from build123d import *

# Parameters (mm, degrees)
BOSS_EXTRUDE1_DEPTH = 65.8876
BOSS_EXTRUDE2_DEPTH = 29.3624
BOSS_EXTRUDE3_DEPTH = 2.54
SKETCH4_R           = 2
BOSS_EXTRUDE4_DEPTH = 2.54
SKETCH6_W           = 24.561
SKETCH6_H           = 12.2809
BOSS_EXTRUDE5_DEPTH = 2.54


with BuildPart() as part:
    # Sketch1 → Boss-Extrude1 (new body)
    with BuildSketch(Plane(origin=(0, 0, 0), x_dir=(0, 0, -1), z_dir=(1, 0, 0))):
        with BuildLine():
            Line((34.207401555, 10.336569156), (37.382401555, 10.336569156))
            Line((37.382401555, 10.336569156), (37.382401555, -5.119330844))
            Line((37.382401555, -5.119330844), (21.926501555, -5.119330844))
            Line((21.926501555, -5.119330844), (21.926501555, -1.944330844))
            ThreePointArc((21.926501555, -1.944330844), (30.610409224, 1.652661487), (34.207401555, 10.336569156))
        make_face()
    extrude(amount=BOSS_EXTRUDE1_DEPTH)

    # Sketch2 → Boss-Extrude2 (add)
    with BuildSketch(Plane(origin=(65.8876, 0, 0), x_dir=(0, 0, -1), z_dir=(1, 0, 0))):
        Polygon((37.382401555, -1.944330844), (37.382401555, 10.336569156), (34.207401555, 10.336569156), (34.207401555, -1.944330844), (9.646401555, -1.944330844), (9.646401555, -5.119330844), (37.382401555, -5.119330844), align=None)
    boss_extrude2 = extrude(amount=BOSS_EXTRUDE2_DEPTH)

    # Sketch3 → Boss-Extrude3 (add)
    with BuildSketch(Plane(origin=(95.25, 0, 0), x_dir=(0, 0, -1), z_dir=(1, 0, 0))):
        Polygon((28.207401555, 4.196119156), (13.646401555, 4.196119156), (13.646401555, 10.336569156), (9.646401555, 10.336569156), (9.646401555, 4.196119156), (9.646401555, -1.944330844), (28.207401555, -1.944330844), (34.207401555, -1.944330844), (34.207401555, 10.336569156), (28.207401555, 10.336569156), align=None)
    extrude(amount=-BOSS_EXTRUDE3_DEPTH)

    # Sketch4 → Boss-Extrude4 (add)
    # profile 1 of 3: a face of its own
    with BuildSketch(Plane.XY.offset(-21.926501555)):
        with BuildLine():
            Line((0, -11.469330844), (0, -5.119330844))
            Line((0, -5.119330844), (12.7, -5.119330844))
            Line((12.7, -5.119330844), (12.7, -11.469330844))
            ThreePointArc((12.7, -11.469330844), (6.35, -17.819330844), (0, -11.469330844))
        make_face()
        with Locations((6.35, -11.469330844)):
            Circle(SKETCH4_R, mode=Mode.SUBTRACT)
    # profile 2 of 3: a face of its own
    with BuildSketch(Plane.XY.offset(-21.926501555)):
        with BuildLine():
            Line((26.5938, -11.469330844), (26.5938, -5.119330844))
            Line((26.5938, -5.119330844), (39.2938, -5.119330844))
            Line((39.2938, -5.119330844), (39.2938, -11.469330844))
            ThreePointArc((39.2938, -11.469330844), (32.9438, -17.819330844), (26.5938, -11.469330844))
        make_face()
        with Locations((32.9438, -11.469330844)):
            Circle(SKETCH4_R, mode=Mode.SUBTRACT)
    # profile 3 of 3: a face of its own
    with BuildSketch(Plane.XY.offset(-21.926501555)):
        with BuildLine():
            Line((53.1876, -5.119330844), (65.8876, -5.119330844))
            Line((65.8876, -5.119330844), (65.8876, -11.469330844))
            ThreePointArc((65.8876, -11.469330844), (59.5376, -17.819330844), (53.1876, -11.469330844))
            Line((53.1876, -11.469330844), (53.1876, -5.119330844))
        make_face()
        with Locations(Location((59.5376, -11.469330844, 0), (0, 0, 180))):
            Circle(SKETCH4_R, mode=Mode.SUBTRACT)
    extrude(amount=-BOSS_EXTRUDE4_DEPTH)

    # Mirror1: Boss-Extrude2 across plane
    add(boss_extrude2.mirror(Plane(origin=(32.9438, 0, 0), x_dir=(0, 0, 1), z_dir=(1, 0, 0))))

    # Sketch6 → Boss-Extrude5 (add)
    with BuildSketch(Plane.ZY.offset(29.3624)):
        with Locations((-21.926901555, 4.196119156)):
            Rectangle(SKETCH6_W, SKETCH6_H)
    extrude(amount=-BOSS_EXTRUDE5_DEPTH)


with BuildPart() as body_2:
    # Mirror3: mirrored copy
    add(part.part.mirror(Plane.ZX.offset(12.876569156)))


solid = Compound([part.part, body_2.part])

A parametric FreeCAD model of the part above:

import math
import FreeCAD as App
import Part
import Sketcher
Q = App.Units.Quantity


def add_polygon(sketch, points):
    """Adds a closed chain of lines whose ends are joined by coincident constraints."""
    first, n = sketch.GeometryCount, len(points)
    for a, b in zip(points, points[1:] + points[:1]):
        sketch.addGeometry(Part.LineSegment(App.Vector(*a, 0), App.Vector(*b, 0)), False)
    for i in range(n):
        sketch.addConstraint(Sketcher.Constraint("Coincident", first + i, 2, first + (i + 1) % n, 1))

doc = App.newDocument("Part")
params = doc.addObject("Spreadsheet::Sheet", "Params")
for row, (alias, value) in enumerate([
    ("sketch1_width", "0.125 in"),
    ("pad1_length", "2.594 in"),
    ("sketch2_width", "0.125 in"),
    ("pad2_length", "1.156 in"),
    ("pad3_length", "0.1 in"),
    ("sketch4_radius", "0.25 in"),
    ("sketch4_height", "0.25 in"),
    ("pad4_length", "0.1 in"),
    ("pad5_length", "0.1 in"),
], start=1):
    params.set(f"A{row}", alias)
    params.set(f"B{row}", "=" + value)
    params.setAlias(f"B{row}", alias)

body = doc.addObject("PartDesign::Body", "Body")

sketch1 = body.newObject("Sketcher::SketchObject", "Sketch")
sketch1.AttachmentSupport = (doc.getObject("YZ_Plane"), [""])
sketch1.MapMode = "FlatFace"
sketch1.addGeometry(Part.LineSegment(App.Vector(10.3, -37.4, 0), App.Vector(10.3, -34.2, 0)), False)
sketch1.addGeometry(Part.ArcOfCircle(Part.Circle(App.Vector(10.3, -21.9, 0), App.Vector(0, 0, 1), 12.3), math.radians(180), math.radians(270)), False)
sketch1.addGeometry(Part.LineSegment(App.Vector(-1.9, -21.9, 0), App.Vector(-5.1, -21.9, 0)), False)
sketch1.addGeometry(Part.LineSegment(App.Vector(-5.1, -21.9, 0), App.Vector(-5.1, -37.4, 0)), False)
sketch1.addGeometry(Part.LineSegment(App.Vector(-5.1, -37.4, 0), App.Vector(10.3, -37.4, 0)), False)
sketch1.addConstraint(Sketcher.Constraint("Coincident", 0, 2, 1, 2))
sketch1.addConstraint(Sketcher.Constraint("Coincident", 1, 1, 2, 1))
sketch1.addConstraint(Sketcher.Constraint("Coincident", 2, 2, 3, 1))
sketch1.addConstraint(Sketcher.Constraint("Coincident", 3, 2, 4, 1))
sketch1.addConstraint(Sketcher.Constraint("Coincident", 4, 2, 0, 1))
sketch1.addConstraint(Sketcher.Constraint("Vertical", 0))
sketch1.addConstraint(Sketcher.Constraint("Horizontal", 2))
sketch1.addConstraint(Sketcher.Constraint("Vertical", 3))
sketch1.addConstraint(Sketcher.Constraint("Horizontal", 4))
sketch1.addConstraint(Sketcher.Constraint("Vertical", 1, 3, 0, 2))
sketch1.addConstraint(Sketcher.Constraint("Equal", 2, 0))
sketch1.addConstraint(Sketcher.Constraint("Equal", 4, 3))
sketch1.addConstraint(Sketcher.Constraint("Radius", 1, Q("0.4835 in")))
sketch1.addConstraint(Sketcher.Constraint("DistanceX", 2, 2, 2, 1, Q("0.125 in")))
sketch1.addConstraint(Sketcher.Constraint("DistanceY", 1, 3, -1, 1, 21.926502))
sketch1.addConstraint(Sketcher.Constraint("DistanceX", -1, 1, 1, 3, 10.336569))
sketch1.setExpression("Constraints[13]", "Params.sketch1_width")
pad1 = body.newObject("PartDesign::Pad", "Pad")
pad1.Profile = sketch1
pad1.setExpression("Length", "Params.pad1_length")

sketch2 = body.newObject("Sketcher::SketchObject", "Sketch001")
sketch2.AttachmentSupport = (doc.getObject("YZ_Plane"), [""])
sketch2.MapMode = "FlatFace"
sketch2.AttachmentOffset = App.Placement(App.Vector(0, 0, 2.594 * 25.4), App.Rotation())
add_polygon(sketch2, [(10.3, -37.4), (10.3, -34.2), (-1.9, -34.2), (-1.9, -9.6), (-5.1, -9.6), (-5.1, -37.4)])
sketch2.addConstraint(Sketcher.Constraint("Vertical", 0))
sketch2.addConstraint(Sketcher.Constraint("Horizontal", 1))
sketch2.addConstraint(Sketcher.Constraint("Vertical", 2))
sketch2.addConstraint(Sketcher.Constraint("Horizontal", 3))
sketch2.addConstraint(Sketcher.Constraint("Vertical", 4))
sketch2.addConstraint(Sketcher.Constraint("Horizontal", 5))
sketch2.addConstraint(Sketcher.Constraint("Equal", 3, 0))
sketch2.addConstraint(Sketcher.Constraint("DistanceX", 3, 2, 3, 1, Q("0.125 in")))
sketch2.addConstraint(Sketcher.Constraint("DistanceX", 1, 2, 1, 1, Q("0.4835 in")))
sketch2.addConstraint(Sketcher.Constraint("DistanceY", 2, 1, 2, 2, 24.561))
sketch2.addConstraint(Sketcher.Constraint("DistanceY", 0, 2, -1, 1, 34.207402))
sketch2.addConstraint(Sketcher.Constraint("DistanceX", -1, 1, 0, 2, 10.336569))
sketch2.setExpression("Constraints[13]", "Params.sketch2_width")
pad2 = body.newObject("PartDesign::Pad", "Pad001")
pad2.Profile = sketch2
pad2.setExpression("Length", "Params.pad2_length")

sketch3 = body.newObject("Sketcher::SketchObject", "Sketch002")
sketch3.AttachmentSupport = (doc.getObject("YZ_Plane"), [""])
sketch3.MapMode = "FlatFace"
sketch3.AttachmentOffset = App.Placement(App.Vector(0, 0, 3.75 * 25.4), App.Rotation())
add_polygon(sketch3, [(4.2, -28.2), (4.2, -13.6), (10.3, -13.6), (10.3, -9.6), (-1.9, -9.6), (-1.9, -34.2), (10.3, -34.2), (10.3, -28.2)])
sketch3.addConstraint(Sketcher.Constraint("Vertical", 0))
sketch3.addConstraint(Sketcher.Constraint("Horizontal", 1))
sketch3.addConstraint(Sketcher.Constraint("Vertical", 2))
sketch3.addConstraint(Sketcher.Constraint("Horizontal", 3))
sketch3.addConstraint(Sketcher.Constraint("Vertical", 4))
sketch3.addConstraint(Sketcher.Constraint("Horizontal", 5))
sketch3.addConstraint(Sketcher.Constraint("Vertical", 6))
sketch3.addConstraint(Sketcher.Constraint("Horizontal", 7))
sketch3.addConstraint(Sketcher.Constraint("Vertical", 2, 2, 5, 2))
sketch3.addConstraint(Sketcher.Constraint("DistanceX", 3, 2, 3, 1, Q("0.4835 in")))
sketch3.addConstraint(Sketcher.Constraint("DistanceY", 0, 1, 0, 2, 14.561))
sketch3.addConstraint(Sketcher.Constraint("DistanceY", 2, 1, 2, 2, 4.0))
sketch3.addConstraint(Sketcher.Constraint("DistanceY", 4, 2, 4, 1, 24.561))
sketch3.addConstraint(Sketcher.Constraint("DistanceX", 1, 1, 1, 2, 6.14045))
sketch3.addConstraint(Sketcher.Constraint("DistanceY", 0, 2, -1, 1, 13.646402))
sketch3.addConstraint(Sketcher.Constraint("DistanceX", -1, 1, 0, 2, 4.196119))
pad3 = body.newObject("PartDesign::Pad", "Pad002")
pad3.Profile = sketch3
pad3.setExpression("Length", "Params.pad3_length")
pad3.Reversed = True

sketch4 = body.newObject("Sketcher::SketchObject", "Sketch003")
sketch4.AttachmentSupport = (doc.getObject("XY_Plane"), [""])
sketch4.MapMode = "FlatFace"
sketch4.AttachmentOffset = App.Placement(App.Vector(0, 0, -21.926502), App.Rotation())
sketch4.addGeometry(Part.LineSegment(App.Vector(0, -5.1, 0), App.Vector(0, -11.5, 0)), False)
sketch4.addGeometry(Part.ArcOfCircle(Part.Circle(App.Vector(6.3, -11.5, 0), App.Vector(0, 0, 1), 6.3), math.radians(180), math.radians(360)), False)
sketch4.addGeometry(Part.LineSegment(App.Vector(12.7, -11.5, 0), App.Vector(12.7, -5.1, 0)), False)
sketch4.addGeometry(Part.LineSegment(App.Vector(12.7, -5.1, 0), App.Vector(0, -5.1, 0)), False)
sketch4.addGeometry(Part.Circle(App.Vector(6.3, -11.5, 0), App.Vector(0, 0, 1), 2), False)
sketch4.addGeometry(Part.LineSegment(App.Vector(26.6, -5.1, 0), App.Vector(26.6, -11.5, 0)), False)
sketch4.addGeometry(Part.ArcOfCircle(Part.Circle(App.Vector(32.9, -11.5, 0), App.Vector(0, 0, 1), 6.3), math.radians(180), math.radians(360)), False)
sketch4.addGeometry(Part.LineSegment(App.Vector(39.3, -11.5, 0), App.Vector(39.3, -5.1, 0)), False)
sketch4.addGeometry(Part.LineSegment(App.Vector(39.3, -5.1, 0), App.Vector(26.6, -5.1, 0)), False)
sketch4.addGeometry(Part.Circle(App.Vector(32.9, -11.5, 0), App.Vector(0, 0, 1), 2), False)
sketch4.addGeometry(Part.LineSegment(App.Vector(65.9, -5.1, 0), App.Vector(53.2, -5.1, 0)), False)
sketch4.addGeometry(Part.LineSegment(App.Vector(53.2, -5.1, 0), App.Vector(53.2, -11.5, 0)), False)
sketch4.addGeometry(Part.ArcOfCircle(Part.Circle(App.Vector(59.5, -11.5, 0), App.Vector(0, 0, 1), 6.3), math.radians(180), math.radians(360)), False)
sketch4.addGeometry(Part.LineSegment(App.Vector(65.9, -11.5, 0), App.Vector(65.9, -5.1, 0)), False)
sketch4.addGeometry(Part.Circle(App.Vector(59.5, -11.5, 0), App.Vector(0, 0, 1), 2), False)
sketch4.addConstraint(Sketcher.Constraint("Tangent", 0, 2, 1, 1))
sketch4.addConstraint(Sketcher.Constraint("Tangent", 1, 2, 2, 1))
sketch4.addConstraint(Sketcher.Constraint("Coincident", 2, 2, 3, 1))
sketch4.addConstraint(Sketcher.Constraint("Coincident", 3, 2, 0, 1))
sketch4.addConstraint(Sketcher.Constraint("Tangent", 5, 2, 6, 1))
sketch4.addConstraint(Sketcher.Constraint("Tangent", 6, 2, 7, 1))
sketch4.addConstraint(Sketcher.Constraint("Coincident", 7, 2, 8, 1))
sketch4.addConstraint(Sketcher.Constraint("Coincident", 8, 2, 5, 1))
sketch4.addConstraint(Sketcher.Constraint("Coincident", 10, 2, 11, 1))
sketch4.addConstraint(Sketcher.Constraint("Tangent", 11, 2, 12, 1))
sketch4.addConstraint(Sketcher.Constraint("Tangent", 12, 2, 13, 1))
sketch4.addConstraint(Sketcher.Constraint("Coincident", 13, 2, 10, 1))
sketch4.addConstraint(Sketcher.Constraint("Vertical", 0))
sketch4.addConstraint(Sketcher.Constraint("Vertical", 2))
sketch4.addConstraint(Sketcher.Constraint("Horizontal", 3))
sketch4.addConstraint(Sketcher.Constraint("Vertical", 5))
sketch4.addConstraint(Sketcher.Constraint("Vertical", 7))
sketch4.addConstraint(Sketcher.Constraint("Horizontal", 8))
sketch4.addConstraint(Sketcher.Constraint("Horizontal", 10))
sketch4.addConstraint(Sketcher.Constraint("Vertical", 11))
sketch4.addConstraint(Sketcher.Constraint("Vertical", 13))
sketch4.addConstraint(Sketcher.Constraint("Coincident", 4, 3, 1, 3))
sketch4.addConstraint(Sketcher.Constraint("Coincident", 9, 3, 6, 3))
sketch4.addConstraint(Sketcher.Constraint("Coincident", 14, 3, 12, 3))
sketch4.addConstraint(Sketcher.Constraint("Equal", 1, 6))
sketch4.addConstraint(Sketcher.Constraint("Equal", 4, 9))
sketch4.addConstraint(Sketcher.Constraint("Equal", 6, 12))
sketch4.addConstraint(Sketcher.Constraint("Equal", 9, 14))
sketch4.addConstraint(Sketcher.Constraint("PointOnObject", 0, 2, -2))
sketch4.addConstraint(Sketcher.Constraint("Horizontal", 4, 3, 6, 3))
sketch4.addConstraint(Sketcher.Constraint("Horizontal", 9, 3, 12, 3))
sketch4.addConstraint(Sketcher.Constraint("Horizontal", 3, 2, 7, 2))
sketch4.addConstraint(Sketcher.Constraint("Horizontal", 8, 2, 10, 2))
sketch4.addConstraint(Sketcher.Constraint("Radius", 1, Q("0.25 in")))
sketch4.addConstraint(Sketcher.Constraint("DistanceY", 0, 2, 0, 1, Q("0.25 in")))
sketch4.addConstraint(Sketcher.Constraint("Diameter", 4, 4.0))
sketch4.addConstraint(Sketcher.Constraint("DistanceX", -1, 1, 6, 3, Q("1.297 in")))
sketch4.addConstraint(Sketcher.Constraint("DistanceX", -1, 1, 12, 3, Q("2.344 in")))
sketch4.addConstraint(Sketcher.Constraint("DistanceY", 1, 3, -1, 1, 11.469331))
sketch4.setExpression("Constraints[33]", "Params.sketch4_radius")
sketch4.setExpression("Constraints[34]", "Params.sketch4_height")
pad4 = body.newObject("PartDesign::Pad", "Pad003")
pad4.Profile = sketch4
pad4.setExpression("Length", "Params.pad4_length")
pad4.Reversed = True
doc.recompute()

datumplane = body.newObject("PartDesign::Plane", "DatumPlane")
datumplane.AttachmentSupport = (doc.getObject("YZ_Plane"), [""])
datumplane.MapMode = "FlatFace"
datumplane.AttachmentOffset = App.Placement(App.Vector(0, 0, 1.297 * 25.4), App.Rotation())
mirrored = body.newObject("PartDesign::Mirrored", "Mirrored")
mirrored.Originals = [pad2]
mirrored.MirrorPlane = (datumplane, [""])
body.Tip = mirrored

sketch5 = body.newObject("Sketcher::SketchObject", "Sketch004")
sketch5.AttachmentSupport = (doc.getObject("YZ_Plane"), [""])
sketch5.MapMode = "FlatFace"
sketch5.AttachmentOffset = App.Placement(App.Vector(0, 0, -1.156 * 25.4), App.Rotation())
add_polygon(sketch5, [(10, -34), (-2, -34), (-2, -10), (10, -10)])
sketch5.addConstraint(Sketcher.Constraint("Horizontal", 0))
sketch5.addConstraint(Sketcher.Constraint("Vertical", 1))
sketch5.addConstraint(Sketcher.Constraint("Horizontal", 2))
sketch5.addConstraint(Sketcher.Constraint("Vertical", 3))
sketch5.addConstraint(Sketcher.Constraint("DistanceX", 0, 2, 0, 1, Q("0.4835 in")))
sketch5.addConstraint(Sketcher.Constraint("DistanceY", 1, 1, 1, 2, 24.561))
sketch5.addConstraint(Sketcher.Constraint("DistanceY", 0, 2, -1, 1, 34.207402))
sketch5.addConstraint(Sketcher.Constraint("DistanceX", 0, 2, -1, 1, 1.944331))
pad5 = body.newObject("PartDesign::Pad", "Pad004")
pad5.Profile = sketch5
pad5.setExpression("Length", "Params.pad5_length")
body2 = doc.addObject("PartDesign::Body", "Body001")
doc.recompute()

mirroring = doc.addObject("Part::Mirroring", "Mirroring")
mirroring.Source = body
mirroring.Base = App.Vector(0, 12.876569, 0)
mirroring.Normal = App.Vector(0, 1, 0)
body2.BaseFeature = mirroring
doc.recompute()
mirroring.Visibility = False

doc.recompute()
